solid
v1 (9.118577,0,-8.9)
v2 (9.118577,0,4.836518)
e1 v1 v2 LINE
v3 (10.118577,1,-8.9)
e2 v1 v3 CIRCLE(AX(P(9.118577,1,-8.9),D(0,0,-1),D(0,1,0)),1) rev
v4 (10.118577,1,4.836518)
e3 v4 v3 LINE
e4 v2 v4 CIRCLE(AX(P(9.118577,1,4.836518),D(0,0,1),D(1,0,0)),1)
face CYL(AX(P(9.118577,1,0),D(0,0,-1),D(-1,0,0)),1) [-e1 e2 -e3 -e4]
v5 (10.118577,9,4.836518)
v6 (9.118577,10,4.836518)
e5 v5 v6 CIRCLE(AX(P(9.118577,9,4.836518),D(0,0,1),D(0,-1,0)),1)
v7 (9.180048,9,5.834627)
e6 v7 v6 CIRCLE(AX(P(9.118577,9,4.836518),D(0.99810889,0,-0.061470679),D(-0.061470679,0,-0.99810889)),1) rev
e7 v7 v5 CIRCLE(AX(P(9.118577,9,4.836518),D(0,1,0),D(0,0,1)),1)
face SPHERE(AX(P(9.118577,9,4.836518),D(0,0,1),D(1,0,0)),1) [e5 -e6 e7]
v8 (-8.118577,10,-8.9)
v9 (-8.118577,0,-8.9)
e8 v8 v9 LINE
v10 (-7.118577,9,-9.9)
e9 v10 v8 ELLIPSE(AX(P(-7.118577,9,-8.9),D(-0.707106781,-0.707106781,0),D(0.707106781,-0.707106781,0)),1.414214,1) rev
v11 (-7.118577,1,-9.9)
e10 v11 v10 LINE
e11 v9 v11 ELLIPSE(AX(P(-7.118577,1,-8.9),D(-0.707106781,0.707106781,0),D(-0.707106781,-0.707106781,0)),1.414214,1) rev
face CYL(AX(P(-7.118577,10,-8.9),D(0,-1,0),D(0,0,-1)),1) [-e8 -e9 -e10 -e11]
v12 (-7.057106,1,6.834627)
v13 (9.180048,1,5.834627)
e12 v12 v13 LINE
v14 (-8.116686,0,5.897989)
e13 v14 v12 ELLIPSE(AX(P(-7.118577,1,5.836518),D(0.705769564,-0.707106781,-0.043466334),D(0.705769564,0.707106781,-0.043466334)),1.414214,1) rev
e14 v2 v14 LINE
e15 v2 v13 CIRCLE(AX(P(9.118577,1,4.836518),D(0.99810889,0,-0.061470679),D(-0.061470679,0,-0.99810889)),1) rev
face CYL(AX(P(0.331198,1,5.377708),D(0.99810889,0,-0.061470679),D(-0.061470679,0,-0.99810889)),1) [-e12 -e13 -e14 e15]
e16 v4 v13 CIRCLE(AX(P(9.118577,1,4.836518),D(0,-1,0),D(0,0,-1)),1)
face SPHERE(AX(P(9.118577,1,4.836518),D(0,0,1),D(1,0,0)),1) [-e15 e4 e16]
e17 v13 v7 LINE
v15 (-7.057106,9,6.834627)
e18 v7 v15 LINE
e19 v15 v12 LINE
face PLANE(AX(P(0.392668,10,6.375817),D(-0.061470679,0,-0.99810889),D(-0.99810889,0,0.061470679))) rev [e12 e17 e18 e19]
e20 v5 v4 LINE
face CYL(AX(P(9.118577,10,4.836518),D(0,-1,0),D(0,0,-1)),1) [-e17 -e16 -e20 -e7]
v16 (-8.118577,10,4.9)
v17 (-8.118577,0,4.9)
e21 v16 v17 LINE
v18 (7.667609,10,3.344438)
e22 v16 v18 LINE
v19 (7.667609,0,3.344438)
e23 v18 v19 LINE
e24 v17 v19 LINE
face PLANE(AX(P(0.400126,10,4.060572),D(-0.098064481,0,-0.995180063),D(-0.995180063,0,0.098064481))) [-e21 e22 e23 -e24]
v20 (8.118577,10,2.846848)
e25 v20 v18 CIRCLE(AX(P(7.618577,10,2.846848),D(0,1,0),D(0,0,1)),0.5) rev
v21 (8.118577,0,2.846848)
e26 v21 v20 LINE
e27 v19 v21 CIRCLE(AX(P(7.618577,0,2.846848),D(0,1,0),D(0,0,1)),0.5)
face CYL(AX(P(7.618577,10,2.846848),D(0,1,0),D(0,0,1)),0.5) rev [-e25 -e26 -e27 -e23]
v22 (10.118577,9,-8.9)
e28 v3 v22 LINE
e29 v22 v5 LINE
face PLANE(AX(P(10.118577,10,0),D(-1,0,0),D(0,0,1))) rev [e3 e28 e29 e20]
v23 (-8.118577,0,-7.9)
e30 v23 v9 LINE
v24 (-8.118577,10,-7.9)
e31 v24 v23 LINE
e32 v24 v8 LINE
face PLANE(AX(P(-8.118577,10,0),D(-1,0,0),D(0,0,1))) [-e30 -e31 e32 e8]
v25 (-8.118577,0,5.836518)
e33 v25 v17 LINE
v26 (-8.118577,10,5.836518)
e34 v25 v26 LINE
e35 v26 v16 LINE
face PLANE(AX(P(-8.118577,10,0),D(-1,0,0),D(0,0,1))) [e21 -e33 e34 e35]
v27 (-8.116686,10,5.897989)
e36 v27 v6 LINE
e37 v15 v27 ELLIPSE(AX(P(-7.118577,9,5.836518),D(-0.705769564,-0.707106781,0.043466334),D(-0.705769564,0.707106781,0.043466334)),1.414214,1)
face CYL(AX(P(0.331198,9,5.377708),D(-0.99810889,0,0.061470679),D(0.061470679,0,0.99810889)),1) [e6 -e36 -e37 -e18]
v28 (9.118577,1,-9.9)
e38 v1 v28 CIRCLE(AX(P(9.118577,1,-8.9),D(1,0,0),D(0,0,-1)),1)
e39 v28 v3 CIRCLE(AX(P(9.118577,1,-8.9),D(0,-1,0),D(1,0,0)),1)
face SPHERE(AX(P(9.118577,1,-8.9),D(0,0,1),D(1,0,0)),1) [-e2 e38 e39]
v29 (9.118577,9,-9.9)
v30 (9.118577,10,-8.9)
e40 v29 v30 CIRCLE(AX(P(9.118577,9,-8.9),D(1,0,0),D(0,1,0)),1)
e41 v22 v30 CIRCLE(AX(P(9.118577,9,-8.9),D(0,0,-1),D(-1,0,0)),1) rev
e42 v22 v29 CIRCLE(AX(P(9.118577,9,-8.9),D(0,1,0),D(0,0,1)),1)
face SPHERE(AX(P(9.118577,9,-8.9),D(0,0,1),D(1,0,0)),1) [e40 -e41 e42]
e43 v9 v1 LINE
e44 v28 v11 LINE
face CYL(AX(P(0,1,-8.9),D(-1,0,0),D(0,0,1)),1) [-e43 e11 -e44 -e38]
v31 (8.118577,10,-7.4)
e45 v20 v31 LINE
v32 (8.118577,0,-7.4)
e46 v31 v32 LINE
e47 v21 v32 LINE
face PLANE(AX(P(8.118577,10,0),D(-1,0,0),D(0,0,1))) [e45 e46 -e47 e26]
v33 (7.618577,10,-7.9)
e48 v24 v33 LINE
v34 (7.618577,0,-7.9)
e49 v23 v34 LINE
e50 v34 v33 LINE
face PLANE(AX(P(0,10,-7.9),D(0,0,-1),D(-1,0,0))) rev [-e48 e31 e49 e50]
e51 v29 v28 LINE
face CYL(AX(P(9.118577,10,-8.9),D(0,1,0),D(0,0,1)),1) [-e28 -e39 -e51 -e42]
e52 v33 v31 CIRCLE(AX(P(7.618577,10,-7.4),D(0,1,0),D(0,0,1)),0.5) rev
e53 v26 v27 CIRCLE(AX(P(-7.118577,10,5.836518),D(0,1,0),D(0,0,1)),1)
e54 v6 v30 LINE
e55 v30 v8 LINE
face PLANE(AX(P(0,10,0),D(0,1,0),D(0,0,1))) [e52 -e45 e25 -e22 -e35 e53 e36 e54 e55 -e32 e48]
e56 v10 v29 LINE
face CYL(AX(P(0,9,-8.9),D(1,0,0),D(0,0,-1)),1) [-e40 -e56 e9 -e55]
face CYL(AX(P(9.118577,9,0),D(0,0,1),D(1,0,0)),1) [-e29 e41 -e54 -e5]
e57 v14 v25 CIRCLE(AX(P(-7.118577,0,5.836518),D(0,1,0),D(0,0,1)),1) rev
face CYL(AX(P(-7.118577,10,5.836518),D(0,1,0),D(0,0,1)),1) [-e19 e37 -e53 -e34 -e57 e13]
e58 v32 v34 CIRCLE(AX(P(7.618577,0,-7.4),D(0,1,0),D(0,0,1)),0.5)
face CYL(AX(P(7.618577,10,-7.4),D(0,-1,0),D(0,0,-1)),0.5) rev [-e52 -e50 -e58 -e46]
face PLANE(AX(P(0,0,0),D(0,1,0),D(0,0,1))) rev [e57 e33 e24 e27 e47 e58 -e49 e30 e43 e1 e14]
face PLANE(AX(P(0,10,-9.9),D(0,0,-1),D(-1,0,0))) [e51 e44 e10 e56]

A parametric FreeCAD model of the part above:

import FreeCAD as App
import Part
import Sketcher
from FreeCAD import Vector
Q = App.Units.Quantity


def edges_at(feature, points):
    """Names of the edges that pass closest to the given points."""
    edges = feature.Shape.Edges
    near = lambda p: min(range(len(edges)), key=lambda i: edges[i].distToShape(Part.Vertex(*p))[0])
    return sorted({f"Edge{near(p) + 1}" for p in points})

doc = App.newDocument("Part")
body = doc.addObject("PartDesign::Body", "Body")

sketch1 = body.newObject("Sketcher::SketchObject", "Sketch")
sketch1.AttachmentSupport = (doc.getObject("XZ_Plane"), [""])
sketch1.MapMode = "FlatFace"
sketch1.addGeometry([
    Part.LineSegment(Vector(-8.118577, 4.9, 0), Vector(-8.118577, 6.9, 0)),
    Part.LineSegment(Vector(-8.118577, 6.9, 0), Vector(10.118577, 5.776826, 0)),
    Part.LineSegment(Vector(10.118577, 5.776826, 0), Vector(10.118577, -9.9, 0)),
    Part.LineSegment(Vector(10.118577, -9.9, 0), Vector(-8.118577, -9.9, 0)),
    Part.LineSegment(Vector(-8.118577, -9.9, 0), Vector(-8.118577, -7.9, 0)),
    Part.LineSegment(Vector(-8.118577, -7.9, 0), Vector(8.118577, -7.9, 0)),
    Part.LineSegment(Vector(8.118577, -7.9, 0), Vector(8.118577, 3.3, 0)),
    Part.LineSegment(Vector(8.118577, 3.3, 0), Vector(-8.118577, 4.9, 0)),
], False)
sketch1.addConstraint([
    Sketcher.Constraint("Coincident", 0, 2, 1, 1),
    Sketcher.Constraint("Coincident", 1, 2, 2, 1),
    Sketcher.Constraint("Coincident", 2, 2, 3, 1),
    Sketcher.Constraint("Coincident", 3, 2, 4, 1),
    Sketcher.Constraint("Coincident", 4, 2, 5, 1),
    Sketcher.Constraint("Coincident", 5, 2, 6, 1),
    Sketcher.Constraint("Coincident", 6, 2, 7, 1),
    Sketcher.Constraint("Coincident", 7, 2, 0, 1),
    Sketcher.Constraint("Vertical", 0),
    Sketcher.Constraint("Vertical", 2),
    Sketcher.Constraint("Horizontal", 3),
    Sketcher.Constraint("Vertical", 4),
    Sketcher.Constraint("Horizontal", 5),
    Sketcher.Constraint("Vertical", 6),
    Sketcher.Constraint("Vertical", 0, 2, 3, 2),
    Sketcher.Constraint("Equal", 0, 4),
    Sketcher.Constraint("DistanceY", 0, 1, 0, 2, Q("2 mm")),
    Sketcher.Constraint("DistanceY", 6, 1, 6, 2, Q("11.2 mm")),
    Sketcher.Constraint("DistanceX", 5, 2, 2, 2, Q("2 mm")),
    Sketcher.Constraint("DistanceY", -1, 1, 0, 2, Q("6.9 mm")),
    Sketcher.Constraint("DistanceY", 2, 2, -1, 1, Q("9.9 mm")),
    Sketcher.Constraint("DistanceX", 3, 2, 3, 1, Q("18.237154 mm")),
    Sketcher.Constraint("DistanceY", 2, 2, 2, 1, Q("15.676826 mm")),
    Sketcher.Constraint("DistanceX", 0, 2, -1, 1, Q("8.118577 mm")),
])
pad1 = body.newObject("PartDesign::Pad", "Pad")
pad1.Profile = sketch1
pad1.Length = 10
pad1.Reversed = True
doc.recompute()

fillet = body.newObject("PartDesign::Fillet", "Fillet")
fillet.Base = (pad1, edges_at(pad1, [
    (1, 0, -9.9),
    (10.119, 0, -2.062),
    (1, 0, 6.338),
    (-8.119, 5, -9.9),
    (10.119, 5, -9.9),
    (10.119, 5, 5.777),
    (-8.119, 5, 6.9),
    (1, 10, 6.338),
    (10.119, 10, -2.062),
    (1, 10, -9.9),
]))
fillet.Radius = 1
doc.recompute()

fillet2 = body.newObject("PartDesign::Fillet", "Fillet001")
fillet2.Base = (fillet, edges_at(fillet, [(8.119, 5, -7.9), (8.119, 5, 3.3)]))
fillet2.Radius = 0.5

doc.recompute()
